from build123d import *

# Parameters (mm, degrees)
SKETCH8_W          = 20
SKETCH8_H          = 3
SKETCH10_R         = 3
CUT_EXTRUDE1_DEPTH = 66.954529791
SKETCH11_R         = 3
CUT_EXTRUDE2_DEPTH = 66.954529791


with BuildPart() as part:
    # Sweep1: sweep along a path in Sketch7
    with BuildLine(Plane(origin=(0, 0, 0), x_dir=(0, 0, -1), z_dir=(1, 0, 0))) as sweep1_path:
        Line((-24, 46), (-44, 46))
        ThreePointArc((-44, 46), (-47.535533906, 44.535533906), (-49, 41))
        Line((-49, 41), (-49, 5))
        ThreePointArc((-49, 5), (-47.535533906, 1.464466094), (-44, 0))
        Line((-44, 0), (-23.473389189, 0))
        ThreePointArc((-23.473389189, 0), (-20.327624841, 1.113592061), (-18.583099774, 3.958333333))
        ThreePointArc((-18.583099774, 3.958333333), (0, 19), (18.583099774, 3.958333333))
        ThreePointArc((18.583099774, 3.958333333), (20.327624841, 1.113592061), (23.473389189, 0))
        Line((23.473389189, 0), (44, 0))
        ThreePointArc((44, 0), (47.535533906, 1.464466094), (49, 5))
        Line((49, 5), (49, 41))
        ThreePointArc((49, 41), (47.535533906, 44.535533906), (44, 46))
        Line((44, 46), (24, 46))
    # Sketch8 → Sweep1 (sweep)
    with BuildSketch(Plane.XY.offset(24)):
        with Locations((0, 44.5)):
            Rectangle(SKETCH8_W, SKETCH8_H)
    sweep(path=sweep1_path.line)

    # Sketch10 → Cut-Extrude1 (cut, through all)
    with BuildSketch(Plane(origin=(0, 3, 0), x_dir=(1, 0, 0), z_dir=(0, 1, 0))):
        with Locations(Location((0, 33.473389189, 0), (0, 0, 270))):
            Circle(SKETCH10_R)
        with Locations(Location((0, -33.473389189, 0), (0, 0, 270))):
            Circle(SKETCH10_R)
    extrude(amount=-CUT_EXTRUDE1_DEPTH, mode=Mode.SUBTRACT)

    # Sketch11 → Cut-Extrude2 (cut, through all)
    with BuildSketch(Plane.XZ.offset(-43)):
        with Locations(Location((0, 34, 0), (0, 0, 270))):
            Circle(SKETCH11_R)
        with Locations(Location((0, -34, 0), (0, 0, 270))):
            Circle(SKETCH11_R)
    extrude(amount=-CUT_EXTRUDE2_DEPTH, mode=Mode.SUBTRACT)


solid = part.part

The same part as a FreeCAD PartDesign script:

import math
import FreeCAD as App
import Part
import Sketcher


def add_polygon(sketch, points):
    """Adds a closed chain of lines whose ends are joined by coincident constraints."""
    first, n = sketch.GeometryCount, len(points)
    for a, b in zip(points, points[1:] + points[:1]):
        sketch.addGeometry(Part.LineSegment(App.Vector(*a, 0), App.Vector(*b, 0)), False)
    for i in range(n):
        sketch.addConstraint(Sketcher.Constraint("Coincident", first + i, 2, first + (i + 1) % n, 1))

doc = App.newDocument("Part")
params = doc.addObject("Spreadsheet::Sheet", "Params")
for row, (alias, value) in enumerate([
    ("sketch1_width", "20 mm"),
    ("sketch1_height", "3 mm"),
    ("sketch2_radius", "5 mm"),
    ("sketch2_radius2", "19 mm"),
    ("sketch2_width", "36 mm"),
    ("sketch2_height", "20 mm"),
    ("sketch3_diameter", "6 mm"),
    ("sketch4_diameter", "6 mm"),
], start=1):
    params.set(f"A{row}", alias)
    params.set(f"B{row}", "=" + value)
    params.setAlias(f"B{row}", alias)

body = doc.addObject("PartDesign::Body", "Body")

# Sketch on XY plane
sketch1 = body.newObject("Sketcher::SketchObject", "Sketch")
sketch1.AttachmentSupport = (doc.getObject("XY_Plane"), [""])
sketch1.MapMode = "FlatFace"
sketch1.AttachmentOffset = App.Placement(App.Vector(0, 0, 24), App.Rotation())
add_polygon(sketch1, [(-10, 46), (-10, 43), (10, 43), (10, 46)])  # lines 0-3
sketch1.addConstraint([
    Sketcher.Constraint("Vertical", 0),
    Sketcher.Constraint("Horizontal", 1),
    Sketcher.Constraint("Vertical", 2),
    Sketcher.Constraint("Horizontal", 3),
    Sketcher.Constraint("DistanceX", 1, 1, 1, 2, 20.0),
    Sketcher.Constraint("DistanceY", 0, 2, 0, 1, 3.0),
    Sketcher.Constraint("DistanceX", 0, 2, -1, 1, 10.0),
    Sketcher.Constraint("DistanceY", -1, 1, 0, 2, 43.0),
])
sketch1.setExpression("Constraints[8]", "Params.sketch1_width")
sketch1.setExpression("Constraints[9]", "Params.sketch1_height")

# Sketch on YZ plane
sketch2 = body.newObject("Sketcher::SketchObject", "Sketch001")
sketch2.AttachmentSupport = (doc.getObject("YZ_Plane"), [""])
sketch2.MapMode = "FlatFace"
sketch2.addGeometry([
    Part.LineSegment(App.Vector(46, 24, 0), App.Vector(46, 44, 0)),  # 0
    Part.ArcOfCircle(Part.Circle(App.Vector(41, 44, 0), App.Vector(0, 0, 1), 5), math.radians(0), math.radians(90)),  # 1
    Part.LineSegment(App.Vector(41, 49, 0), App.Vector(5, 49, 0)),  # 2
    Part.ArcOfCircle(Part.Circle(App.Vector(5, 44, 0), App.Vector(0, 0, 1), 5), math.radians(90), math.radians(180)),  # 3
    Part.LineSegment(App.Vector(0, 44, 0), App.Vector(0, 23, 0)),  # 4
    Part.ArcOfCircle(Part.Circle(App.Vector(5, 23, 0), App.Vector(0, 0, 1), 5), math.radians(180), math.radians(258)),  # 5
    Part.ArcOfCircle(Part.Circle(App.Vector(0, 0, 0), App.Vector(0, 0, 1), 19), math.radians(-78), math.radians(78)),  # 6
    Part.ArcOfCircle(Part.Circle(App.Vector(5, -23, 0), App.Vector(0, 0, 1), 5), math.radians(102), math.radians(180)),  # 7
    Part.LineSegment(App.Vector(0, -23, 0), App.Vector(0, -44, 0)),  # 8
    Part.ArcOfCircle(Part.Circle(App.Vector(5, -44, 0), App.Vector(0, 0, 1), 5), math.radians(180), math.radians(270)),  # 9
    Part.LineSegment(App.Vector(5, -49, 0), App.Vector(41, -49, 0)),  # 10
    Part.ArcOfCircle(Part.Circle(App.Vector(41, -44, 0), App.Vector(0, 0, 1), 5), math.radians(-90), math.radians(0)),  # 11
    Part.LineSegment(App.Vector(46, -44, 0), App.Vector(46, -24, 0)),  # 12
], False)
sketch2.addConstraint([
    Sketcher.Constraint("Tangent", 0, 2, 1, 1),
    Sketcher.Constraint("Tangent", 1, 2, 2, 1),
    Sketcher.Constraint("Tangent", 2, 2, 3, 1),
    Sketcher.Constraint("Tangent", 3, 2, 4, 1),
    Sketcher.Constraint("Tangent", 4, 2, 5, 1),
    Sketcher.Constraint("Tangent", 5, 2, 6, 2),
    Sketcher.Constraint("Tangent", 6, 1, 7, 1),
    Sketcher.Constraint("Tangent", 7, 2, 8, 1),
    Sketcher.Constraint("Tangent", 8, 2, 9, 1),
    Sketcher.Constraint("Tangent", 9, 2, 10, 1),
    Sketcher.Constraint("Tangent", 10, 2, 11, 1),
    Sketcher.Constraint("Tangent", 11, 2, 12, 1),
    Sketcher.Constraint("Vertical", 0),
    Sketcher.Constraint("Horizontal", 2),
    Sketcher.Constraint("Vertical", 4),
    Sketcher.Constraint("Vertical", 8),
    Sketcher.Constraint("Horizontal", 10),
    Sketcher.Constraint("Vertical", 12),
    Sketcher.Constraint("Coincident", 6, 3, -1, 1),
    Sketcher.Constraint("Equal", 1, 3),
    Sketcher.Constraint("Equal", 3, 5),
    Sketcher.Constraint("Equal", 5, 7),
    Sketcher.Constraint("Equal", 7, 9),
    Sketcher.Constraint("Equal", 9, 11),
    Sketcher.Constraint("Symmetric", 4, 2, 7, 2, -1, 1),
    Sketcher.Constraint("Symmetric", 1, 3, 11, 3, -1),
    Sketcher.Constraint("Equal", 0, 12),
    Sketcher.Constraint("Radius", 1, 5.0),
    Sketcher.Constraint("Radius", 6, 19.0),
    Sketcher.Constraint("DistanceX", 2, 2, 2, 1, 36.0),
    Sketcher.Constraint("DistanceY", 0, 1, 0, 2, 20.0),
    Sketcher.Constraint("DistanceY", -1, 1, 1, 3, 44.0),
])
sketch2.setExpression("Constraints[27]", "Params.sketch2_radius")
sketch2.setExpression("Constraints[28]", "Params.sketch2_radius2")
sketch2.setExpression("Constraints[29]", "Params.sketch2_width")
sketch2.setExpression("Constraints[30]", "Params.sketch2_height")
doc.recompute()

additivepipe = body.newObject("PartDesign::AdditivePipe", "AdditivePipe")
additivepipe.Profile = sketch1
additivepipe.Spine = (sketch2, ["Edge1", "Edge2", "Edge3", "Edge4", "Edge5", "Edge6", "Edge7", "Edge8", "Edge9", "Edge10", "Edge11", "Edge12", "Edge13"])

# Sketch on XZ plane
sketch3 = body.newObject("Sketcher::SketchObject", "Sketch002")
sketch3.AttachmentSupport = (doc.getObject("XZ_Plane"), [""])
sketch3.MapMode = "FlatFace"
sketch3.AttachmentOffset = App.Placement(App.Vector(0, 0, -3), App.Rotation())
sketch3.addGeometry([
    Part.Circle(App.Vector(0, -33.5, 0), App.Vector(0, 0, 1), 3),
    Part.Circle(App.Vector(0, 33.5, 0), App.Vector(0, 0, 1), 3),
], False)
sketch3.addConstraint([
    Sketcher.Constraint("Equal", 0, 1),
    Sketcher.Constraint("Symmetric", 0, 3, 1, 3, -1, 1),
    Sketcher.Constraint("PointOnObject", 0, 3, -2),
    Sketcher.Constraint("Diameter", 0, 6.0),
    Sketcher.Constraint("DistanceY", 0, 3, -1, 1, 33.473389),
])
sketch3.setExpression("Constraints[3]", "Params.sketch3_diameter")
pocket1 = body.newObject("PartDesign::Pocket", "Pocket")
pocket1.Profile = sketch3
pocket1.Type = "ThroughAll"
pocket1.Reversed = True

# Sketch on XZ plane
sketch4 = body.newObject("Sketcher::SketchObject", "Sketch003")
sketch4.AttachmentSupport = (doc.getObject("XZ_Plane"), [""])
sketch4.MapMode = "FlatFace"
sketch4.AttachmentOffset = App.Placement(App.Vector(0, 0, -43), App.Rotation())
sketch4.addGeometry([
    Part.Circle(App.Vector(0, 34, 0), App.Vector(0, 0, 1), 3),
    Part.Circle(App.Vector(0, -34, 0), App.Vector(0, 0, 1), 3),
], False)
sketch4.addConstraint([
    Sketcher.Constraint("Equal", 0, 1),
    Sketcher.Constraint("Symmetric", 0, 3, 1, 3, -1, 1),
    Sketcher.Constraint("PointOnObject", 0, 3, -2),
    Sketcher.Constraint("Diameter", 0, 6.0),
    Sketcher.Constraint("DistanceY", -1, 1, 0, 3, 34.0),
])
sketch4.setExpression("Constraints[3]", "Params.sketch4_diameter")
pocket2 = body.newObject("PartDesign::Pocket", "Pocket001")
pocket2.Profile = sketch4
pocket2.Type = "ThroughAll"

doc.recompute()
